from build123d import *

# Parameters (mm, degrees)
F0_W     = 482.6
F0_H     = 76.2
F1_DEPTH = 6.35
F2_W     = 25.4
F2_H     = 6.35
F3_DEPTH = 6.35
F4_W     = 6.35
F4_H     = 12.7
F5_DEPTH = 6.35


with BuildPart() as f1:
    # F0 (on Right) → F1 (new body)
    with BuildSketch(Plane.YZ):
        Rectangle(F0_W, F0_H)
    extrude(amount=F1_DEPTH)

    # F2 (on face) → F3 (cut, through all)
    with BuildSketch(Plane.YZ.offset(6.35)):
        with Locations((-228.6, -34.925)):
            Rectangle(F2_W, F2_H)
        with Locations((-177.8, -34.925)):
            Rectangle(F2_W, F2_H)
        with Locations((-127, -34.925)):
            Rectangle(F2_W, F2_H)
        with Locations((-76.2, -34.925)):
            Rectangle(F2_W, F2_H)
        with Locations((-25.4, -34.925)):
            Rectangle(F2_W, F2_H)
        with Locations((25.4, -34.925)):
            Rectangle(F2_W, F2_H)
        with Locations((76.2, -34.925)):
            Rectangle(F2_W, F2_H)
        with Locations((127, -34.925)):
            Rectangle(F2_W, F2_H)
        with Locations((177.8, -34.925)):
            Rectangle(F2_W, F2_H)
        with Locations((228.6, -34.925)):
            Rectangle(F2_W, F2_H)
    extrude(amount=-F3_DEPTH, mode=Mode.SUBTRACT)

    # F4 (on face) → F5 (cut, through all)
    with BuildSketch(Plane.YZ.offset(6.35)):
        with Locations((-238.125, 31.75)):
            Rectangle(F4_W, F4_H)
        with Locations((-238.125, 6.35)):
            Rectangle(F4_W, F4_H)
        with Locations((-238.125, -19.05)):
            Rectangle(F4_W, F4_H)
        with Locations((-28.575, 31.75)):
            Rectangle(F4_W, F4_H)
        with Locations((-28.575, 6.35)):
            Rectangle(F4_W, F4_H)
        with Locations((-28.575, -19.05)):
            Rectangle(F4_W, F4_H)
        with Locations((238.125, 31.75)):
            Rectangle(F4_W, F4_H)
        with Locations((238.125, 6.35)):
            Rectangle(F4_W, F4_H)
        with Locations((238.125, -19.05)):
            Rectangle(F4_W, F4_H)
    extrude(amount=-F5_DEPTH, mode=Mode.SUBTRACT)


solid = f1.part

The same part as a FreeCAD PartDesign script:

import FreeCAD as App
import Part
import Sketcher

V = App.Vector
Q = App.Units.Quantity

doc = App.newDocument("Part")
body = doc.addObject("PartDesign::Body", "Body")

sketch1 = doc.addObject("Sketcher::SketchObject", "Sketch")
body.addObject(sketch1)
sketch1.AttachmentSupport = (doc.YZ_Plane, [""])
sketch1.MapMode = "FlatFace"
sketch1.addGeometry([
    Part.LineSegment(V(-241.3, 38.1, 0), V(-241.3, -38.1, 0)),
    Part.LineSegment(V(-241.3, -38.1, 0), V(241.3, -38.1, 0)),
    Part.LineSegment(V(241.3, -38.1, 0), V(241.3, 38.1, 0)),
    Part.LineSegment(V(241.3, 38.1, 0), V(-241.3, 38.1, 0)),
], False)
sketch1.addConstraint([
    Sketcher.Constraint("Coincident", 0, 2, 1, 1),
    Sketcher.Constraint("Coincident", 1, 2, 2, 1),
    Sketcher.Constraint("Coincident", 2, 2, 3, 1),
    Sketcher.Constraint("Coincident", 3, 2, 0, 1),
    Sketcher.Constraint("Vertical", 0),
    Sketcher.Constraint("Horizontal", 1),
    Sketcher.Constraint("Vertical", 2),
    Sketcher.Constraint("Horizontal", 3),
    Sketcher.Constraint("Symmetric", 0, 2, 2, 2, -1, 1),
    Sketcher.Constraint("DistanceX", 1, 1, 1, 2, Q("19 in")),
    Sketcher.Constraint("DistanceY", 0, 2, 0, 1, Q("3 in")),
])
pad1 = doc.addObject("PartDesign::Pad", "Pad")
body.addObject(pad1)
pad1.Profile = sketch1
pad1.Length = Q("0.25 in")

sketch2 = doc.addObject("Sketcher::SketchObject", "Sketch001")
body.addObject(sketch2)
sketch2.AttachmentSupport = (doc.YZ_Plane, [""])
sketch2.MapMode = "FlatFace"
sketch2.AttachmentOffset = App.Placement(V(0, 0, 0.25 * 25.4), App.Rotation())
sketch2.addGeometry([
    Part.LineSegment(V(-241.3, -31.75, 0), V(-241.3, -38.1, 0)),
    Part.LineSegment(V(-241.3, -38.1, 0), V(-215.9, -38.1, 0)),
    Part.LineSegment(V(-215.9, -38.1, 0), V(-215.9, -31.75, 0)),
    Part.LineSegment(V(-215.9, -31.75, 0), V(-241.3, -31.75, 0)),
    Part.LineSegment(V(-190.5, -31.75, 0), V(-190.5, -38.1, 0)),
    Part.LineSegment(V(-190.5, -38.1, 0), V(-165.1, -38.1, 0)),
    Part.LineSegment(V(-165.1, -38.1, 0), V(-165.1, -31.75, 0)),
    Part.LineSegment(V(-165.1, -31.75, 0), V(-190.5, -31.75, 0)),
    Part.LineSegment(V(-139.7, -31.75, 0), V(-139.7, -38.1, 0)),
    Part.LineSegment(V(-139.7, -38.1, 0), V(-114.3, -38.1, 0)),
    Part.LineSegment(V(-114.3, -38.1, 0), V(-114.3, -31.75, 0)),
    Part.LineSegment(V(-114.3, -31.75, 0), V(-139.7, -31.75, 0)),
    Part.LineSegment(V(-88.9, -31.75, 0), V(-88.9, -38.1, 0)),
    Part.LineSegment(V(-88.9, -38.1, 0), V(-63.5, -38.1, 0)),
    Part.LineSegment(V(-63.5, -38.1, 0), V(-63.5, -31.75, 0)),
    Part.LineSegment(V(-63.5, -31.75, 0), V(-88.9, -31.75, 0)),
    Part.LineSegment(V(-38.1, -31.75, 0), V(-38.1, -38.1, 0)),
    Part.LineSegment(V(-38.1, -38.1, 0), V(-12.7, -38.1, 0)),
    Part.LineSegment(V(-12.7, -38.1, 0), V(-12.7, -31.75, 0)),
    Part.LineSegment(V(-12.7, -31.75, 0), V(-38.1, -31.75, 0)),
    Part.LineSegment(V(12.7, -31.75, 0), V(12.7, -38.1, 0)),
    Part.LineSegment(V(12.7, -38.1, 0), V(38.1, -38.1, 0)),
    Part.LineSegment(V(38.1, -38.1, 0), V(38.1, -31.75, 0)),
    Part.LineSegment(V(38.1, -31.75, 0), V(12.7, -31.75, 0)),
    Part.LineSegment(V(63.5, -31.75, 0), V(63.5, -38.1, 0)),
    Part.LineSegment(V(63.5, -38.1, 0), V(88.9, -38.1, 0)),
    Part.LineSegment(V(88.9, -38.1, 0), V(88.9, -31.75, 0)),
    Part.LineSegment(V(88.9, -31.75, 0), V(63.5, -31.75, 0)),
    Part.LineSegment(V(114.3, -31.75, 0), V(114.3, -38.1, 0)),
    Part.LineSegment(V(114.3, -38.1, 0), V(139.7, -38.1, 0)),
    Part.LineSegment(V(139.7, -38.1, 0), V(139.7, -31.75, 0)),
    Part.LineSegment(V(139.7, -31.75, 0), V(114.3, -31.75, 0)),
    Part.LineSegment(V(165.1, -31.75, 0), V(165.1, -38.1, 0)),
    Part.LineSegment(V(165.1, -38.1, 0), V(190.5, -38.1, 0)),
    Part.LineSegment(V(190.5, -38.1, 0), V(190.5, -31.75, 0)),
    Part.LineSegment(V(190.5, -31.75, 0), V(165.1, -31.75, 0)),
    Part.LineSegment(V(215.9, -31.75, 0), V(215.9, -38.1, 0)),
    Part.LineSegment(V(215.9, -38.1, 0), V(241.3, -38.1, 0)),
    Part.LineSegment(V(241.3, -38.1, 0), V(241.3, -31.75, 0)),
    Part.LineSegment(V(241.3, -31.75, 0), V(215.9, -31.75, 0)),
], False)
sketch2.addConstraint([
    Sketcher.Constraint("Coincident", 0, 2, 1, 1),
    Sketcher.Constraint("Coincident", 1, 2, 2, 1),
    Sketcher.Constraint("Coincident", 2, 2, 3, 1),
    Sketcher.Constraint("Coincident", 3, 2, 0, 1),
    Sketcher.Constraint("Coincident", 4, 2, 5, 1),
    Sketcher.Constraint("Coincident", 5, 2, 6, 1),
    Sketcher.Constraint("Coincident", 6, 2, 7, 1),
    Sketcher.Constraint("Coincident", 7, 2, 4, 1),
    Sketcher.Constraint("Coincident", 8, 2, 9, 1),
    Sketcher.Constraint("Coincident", 9, 2, 10, 1),
    Sketcher.Constraint("Coincident", 10, 2, 11, 1),
    Sketcher.Constraint("Coincident", 11, 2, 8, 1),
    Sketcher.Constraint("Coincident", 12, 2, 13, 1),
    Sketcher.Constraint("Coincident", 13, 2, 14, 1),
    Sketcher.Constraint("Coincident", 14, 2, 15, 1),
    Sketcher.Constraint("Coincident", 15, 2, 12, 1),
    Sketcher.Constraint("Coincident", 16, 2, 17, 1),
    Sketcher.Constraint("Coincident", 17, 2, 18, 1),
    Sketcher.Constraint("Coincident", 18, 2, 19, 1),
    Sketcher.Constraint("Coincident", 19, 2, 16, 1),
    Sketcher.Constraint("Coincident", 20, 2, 21, 1),
    Sketcher.Constraint("Coincident", 21, 2, 22, 1),
    Sketcher.Constraint("Coincident", 22, 2, 23, 1),
    Sketcher.Constraint("Coincident", 23, 2, 20, 1),
    Sketcher.Constraint("Coincident", 24, 2, 25, 1),
    Sketcher.Constraint("Coincident", 25, 2, 26, 1),
    Sketcher.Constraint("Coincident", 26, 2, 27, 1),
    Sketcher.Constraint("Coincident", 27, 2, 24, 1),
    Sketcher.Constraint("Coincident", 28, 2, 29, 1),
    Sketcher.Constraint("Coincident", 29, 2, 30, 1),
    Sketcher.Constraint("Coincident", 30, 2, 31, 1),
    Sketcher.Constraint("Coincident", 31, 2, 28, 1),
    Sketcher.Constraint("Coincident", 32, 2, 33, 1),
    Sketcher.Constraint("Coincident", 33, 2, 34, 1),
    Sketcher.Constraint("Coincident", 34, 2, 35, 1),
    Sketcher.Constraint("Coincident", 35, 2, 32, 1),
    Sketcher.Constraint("Coincident", 36, 2, 37, 1),
    Sketcher.Constraint("Coincident", 37, 2, 38, 1),
    Sketcher.Constraint("Coincident", 38, 2, 39, 1),
    Sketcher.Constraint("Coincident", 39, 2, 36, 1),
    Sketcher.Constraint("Vertical", 0),
    Sketcher.Constraint("Horizontal", 1),
    Sketcher.Constraint("Vertical", 2),
    Sketcher.Constraint("Horizontal", 3),
    Sketcher.Constraint("Vertical", 4),
    Sketcher.Constraint("Horizontal", 5),
    Sketcher.Constraint("Vertical", 6),
    Sketcher.Constraint("Horizontal", 7),
    Sketcher.Constraint("Vertical", 8),
    Sketcher.Constraint("Horizontal", 9),
    Sketcher.Constraint("Vertical", 10),
    Sketcher.Constraint("Horizontal", 11),
    Sketcher.Constraint("Vertical", 12),
    Sketcher.Constraint("Horizontal", 13),
    Sketcher.Constraint("Vertical", 14),
    Sketcher.Constraint("Horizontal", 15),
    Sketcher.Constraint("Vertical", 16),
    Sketcher.Constraint("Horizontal", 17),
    Sketcher.Constraint("Vertical", 18),
    Sketcher.Constraint("Horizontal", 19),
    Sketcher.Constraint("Vertical", 20),
    Sketcher.Constraint("Horizontal", 21),
    Sketcher.Constraint("Vertical", 22),
    Sketcher.Constraint("Horizontal", 23),
    Sketcher.Constraint("Vertical", 24),
    Sketcher.Constraint("Horizontal", 25),
    Sketcher.Constraint("Vertical", 26),
    Sketcher.Constraint("Horizontal", 27),
    Sketcher.Constraint("Vertical", 28),
    Sketcher.Constraint("Horizontal", 29),
    Sketcher.Constraint("Vertical", 30),
    Sketcher.Constraint("Horizontal", 31),
    Sketcher.Constraint("Vertical", 32),
    Sketcher.Constraint("Horizontal", 33),
    Sketcher.Constraint("Vertical", 34),
    Sketcher.Constraint("Horizontal", 35),
    Sketcher.Constraint("Vertical", 36),
    Sketcher.Constraint("Horizontal", 37),
    Sketcher.Constraint("Vertical", 38),
    Sketcher.Constraint("Horizontal", 39),
    Sketcher.Constraint("Symmetric", 17, 2, 20, 2, -2),
    Sketcher.Constraint("Symmetric", 19, 2, 22, 2, -2),
    Sketcher.Constraint("Symmetric", 13, 2, 24, 2, -2),
    Sketcher.Constraint("Symmetric", 15, 2, 26, 2, -2),
    Sketcher.Constraint("Symmetric", 9, 2, 28, 2, -2),
    Sketcher.Constraint("Symmetric", 11, 2, 30, 2, -2),
    Sketcher.Constraint("Symmetric", 5, 2, 32, 2, -2),
    Sketcher.Constraint("Symmetric", 7, 2, 34, 2, -2),
    Sketcher.Constraint("Symmetric", 1, 2, 36, 2, -2),
    Sketcher.Constraint("Symmetric", 3, 2, 38, 2, -2),
    Sketcher.Constraint("Horizontal", 1, 2, 4, 2),
    Sketcher.Constraint("Horizontal", 3, 2, 6, 2),
    Sketcher.Constraint("Horizontal", 5, 2, 8, 2),
    Sketcher.Constraint("Horizontal", 7, 2, 10, 2),
    Sketcher.Constraint("Horizontal", 9, 2, 12, 2),
    Sketcher.Constraint("Horizontal", 11, 2, 14, 2),
    Sketcher.Constraint("Horizontal", 13, 2, 16, 2),
    Sketcher.Constraint("Horizontal", 15, 2, 18, 2),
    Sketcher.Constraint("Equal", 3, 5),
    Sketcher.Constraint("Equal", 7, 9),
    Sketcher.Constraint("Equal", 11, 13),
    Sketcher.Constraint("Equal", 15, 17),
    Sketcher.Constraint("DistanceX", 1, 1, 1, 2, Q("1 in")),
    Sketcher.Constraint("DistanceX", 1, 2, 4, 2, Q("1 in")),
    Sketcher.Constraint("DistanceX", 5, 2, 8, 2, Q("1 in")),
    Sketcher.Constraint("DistanceX", 9, 2, 12, 2, Q("1 in")),
    Sketcher.Constraint("DistanceX", 13, 2, 16, 2, Q("1 in")),
    Sketcher.Constraint("DistanceX", 17, 2, 20, 2, Q("1 in")),
    Sketcher.Constraint("DistanceY", 0, 2, 0, 1, Q("0.25 in")),
    Sketcher.Constraint("DistanceY", 0, 2, -1, 1, Q("1.5 in")),
])
pocket1 = doc.addObject("PartDesign::Pocket", "Pocket")
body.addObject(pocket1)
pocket1.Profile = sketch2
pocket1.Type = "ThroughAll"

sketch3 = doc.addObject("Sketcher::SketchObject", "Sketch002")
body.addObject(sketch3)
sketch3.AttachmentSupport = (doc.YZ_Plane, [""])
sketch3.MapMode = "FlatFace"
sketch3.AttachmentOffset = App.Placement(V(0, 0, 0.25 * 25.4), App.Rotation())
sketch3.addGeometry([
    Part.LineSegment(V(-241.3, 38.1, 0), V(-241.3, 25.4, 0)),
    Part.LineSegment(V(-241.3, 25.4, 0), V(-234.95, 25.4, 0)),
    Part.LineSegment(V(-234.95, 25.4, 0), V(-234.95, 38.1, 0)),
    Part.LineSegment(V(-234.95, 38.1, 0), V(-241.3, 38.1, 0)),
    Part.LineSegment(V(-241.3, 12.7, 0), V(-241.3, 0, 0)),
    Part.LineSegment(V(-241.3, 0, 0), V(-234.95, 0, 0)),
    Part.LineSegment(V(-234.95, 0, 0), V(-234.95, 12.7, 0)),
    Part.LineSegment(V(-234.95, 12.7, 0), V(-241.3, 12.7, 0)),
    Part.LineSegment(V(-241.3, -12.7, 0), V(-241.3, -25.4, 0)),
    Part.LineSegment(V(-241.3, -25.4, 0), V(-234.95, -25.4, 0)),
    Part.LineSegment(V(-234.95, -25.4, 0), V(-234.95, -12.7, 0)),
    Part.LineSegment(V(-234.95, -12.7, 0), V(-241.3, -12.7, 0)),
    Part.LineSegment(V(-31.75, 38.1, 0), V(-31.75, 25.4, 0)),
    Part.LineSegment(V(-31.75, 25.4, 0), V(-25.4, 25.4, 0)),
    Part.LineSegment(V(-25.4, 25.4, 0), V(-25.4, 38.1, 0)),
    Part.LineSegment(V(-25.4, 38.1, 0), V(-31.75, 38.1, 0)),
    Part.LineSegment(V(-31.75, 12.7, 0), V(-31.75, 0, 0)),
    Part.LineSegment(V(-31.75, 0, 0), V(-25.4, 0, 0)),
    Part.LineSegment(V(-25.4, 0, 0), V(-25.4, 12.7, 0)),
    Part.LineSegment(V(-25.4, 12.7, 0), V(-31.75, 12.7, 0)),
    Part.LineSegment(V(-31.75, -12.7, 0), V(-31.75, -25.4, 0)),
    Part.LineSegment(V(-31.75, -25.4, 0), V(-25.4, -25.4, 0)),
    Part.LineSegment(V(-25.4, -25.4, 0), V(-25.4, -12.7, 0)),
    Part.LineSegment(V(-25.4, -12.7, 0), V(-31.75, -12.7, 0)),
    Part.LineSegment(V(234.95, 38.1, 0), V(234.95, 25.4, 0)),
    Part.LineSegment(V(234.95, 25.4, 0), V(241.3, 25.4, 0)),
    Part.LineSegment(V(241.3, 25.4, 0), V(241.3, 38.1, 0)),
    Part.LineSegment(V(241.3, 38.1, 0), V(234.95, 38.1, 0)),
    Part.LineSegment(V(234.95, 12.7, 0), V(234.95, 0, 0)),
    Part.LineSegment(V(234.95, 0, 0), V(241.3, 0, 0)),
    Part.LineSegment(V(241.3, 0, 0), V(241.3, 12.7, 0)),
    Part.LineSegment(V(241.3, 12.7, 0), V(234.95, 12.7, 0)),
    Part.LineSegment(V(234.95, -12.7, 0), V(234.95, -25.4, 0)),
    Part.LineSegment(V(234.95, -25.4, 0), V(241.3, -25.4, 0)),
    Part.LineSegment(V(241.3, -25.4, 0), V(241.3, -12.7, 0)),
    Part.LineSegment(V(241.3, -12.7, 0), V(234.95, -12.7, 0)),
], False)
sketch3.addConstraint([
    Sketcher.Constraint("Coincident", 0, 2, 1, 1),
    Sketcher.Constraint("Coincident", 1, 2, 2, 1),
    Sketcher.Constraint("Coincident", 2, 2, 3, 1),
    Sketcher.Constraint("Coincident", 3, 2, 0, 1),
    Sketcher.Constraint("Coincident", 4, 2, 5, 1),
    Sketcher.Constraint("Coincident", 5, 2, 6, 1),
    Sketcher.Constraint("Coincident", 6, 2, 7, 1),
    Sketcher.Constraint("Coincident", 7, 2, 4, 1),
    Sketcher.Constraint("Coincident", 8, 2, 9, 1),
    Sketcher.Constraint("Coincident", 9, 2, 10, 1),
    Sketcher.Constraint("Coincident", 10, 2, 11, 1),
    Sketcher.Constraint("Coincident", 11, 2, 8, 1),
    Sketcher.Constraint("Coincident", 12, 2, 13, 1),
    Sketcher.Constraint("Coincident", 13, 2, 14, 1),
    Sketcher.Constraint("Coincident", 14, 2, 15, 1),
    Sketcher.Constraint("Coincident", 15, 2, 12, 1),
    Sketcher.Constraint("Coincident", 16, 2, 17, 1),
    Sketcher.Constraint("Coincident", 17, 2, 18, 1),
    Sketcher.Constraint("Coincident", 18, 2, 19, 1),
    Sketcher.Constraint("Coincident", 19, 2, 16, 1),
    Sketcher.Constraint("Coincident", 20, 2, 21, 1),
    Sketcher.Constraint("Coincident", 21, 2, 22, 1),
    Sketcher.Constraint("Coincident", 22, 2, 23, 1),
    Sketcher.Constraint("Coincident", 23, 2, 20, 1),
    Sketcher.Constraint("Coincident", 24, 2, 25, 1),
    Sketcher.Constraint("Coincident", 25, 2, 26, 1),
    Sketcher.Constraint("Coincident", 26, 2, 27, 1),
    Sketcher.Constraint("Coincident", 27, 2, 24, 1),
    Sketcher.Constraint("Coincident", 28, 2, 29, 1),
    Sketcher.Constraint("Coincident", 29, 2, 30, 1),
    Sketcher.Constraint("Coincident", 30, 2, 31, 1),
    Sketcher.Constraint("Coincident", 31, 2, 28, 1),
    Sketcher.Constraint("Coincident", 32, 2, 33, 1),
    Sketcher.Constraint("Coincident", 33, 2, 34, 1),
    Sketcher.Constraint("Coincident", 34, 2, 35, 1),
    Sketcher.Constraint("Coincident", 35, 2, 32, 1),
    Sketcher.Constraint("Vertical", 0),
    Sketcher.Constraint("Horizontal", 1),
    Sketcher.Constraint("Vertical", 2),
    Sketcher.Constraint("Horizontal", 3),
    Sketcher.Constraint("Vertical", 4),
    Sketcher.Constraint("Horizontal", 5),
    Sketcher.Constraint("Vertical", 6),
    Sketcher.Constraint("Horizontal", 7),
    Sketcher.Constraint("Vertical", 8),
    Sketcher.Constraint("Horizontal", 9),
    Sketcher.Constraint("Vertical", 10),
    Sketcher.Constraint("Horizontal", 11),
    Sketcher.Constraint("Vertical", 12),
    Sketcher.Constraint("Horizontal", 13),
    Sketcher.Constraint("Vertical", 14),
    Sketcher.Constraint("Horizontal", 15),
    Sketcher.Constraint("Vertical", 16),
    Sketcher.Constraint("Horizontal", 17),
    Sketcher.Constraint("Vertical", 18),
    Sketcher.Constraint("Horizontal", 19),
    Sketcher.Constraint("Vertical", 20),
    Sketcher.Constraint("Horizontal", 21),
    Sketcher.Constraint("Vertical", 22),
    Sketcher.Constraint("Horizontal", 23),
    Sketcher.Constraint("Vertical", 24),
    Sketcher.Constraint("Horizontal", 25),
    Sketcher.Constraint("Vertical", 26),
    Sketcher.Constraint("Horizontal", 27),
    Sketcher.Constraint("Vertical", 28),
    Sketcher.Constraint("Horizontal", 29),
    Sketcher.Constraint("Vertical", 30),
    Sketcher.Constraint("Horizontal", 31),
    Sketcher.Constraint("Vertical", 32),
    Sketcher.Constraint("Horizontal", 33),
    Sketcher.Constraint("Vertical", 34),
    Sketcher.Constraint("Horizontal", 35),
    Sketcher.Constraint("Symmetric", 9, 2, 24, 2, -1, 1),
    Sketcher.Constraint("Symmetric", 5, 2, 28, 2, -1, 1),
    Sketcher.Constraint("Symmetric", 11, 2, 30, 2, -1, 1),
    Sketcher.Constraint("Symmetric", 1, 2, 32, 2, -1, 1),
    Sketcher.Constraint("Symmetric", 7, 2, 34, 2, -1, 1),
    Sketcher.Constraint("Symmetric", 1, 2, 24, 2, -2),
    Sketcher.Constraint("Symmetric", 3, 2, 26, 2, -2),
    Sketcher.Constraint("Symmetric", 4, 2, 29, 2, -2),
    Sketcher.Constraint("Symmetric", 6, 2, 10, 2, -1),
    Sketcher.Constraint("Symmetric", 12, 2, 20, 2, -1),
    Sketcher.Constraint("Symmetric", 18, 2, 22, 2, -1),
    Sketcher.Constraint("PointOnObject", 16, 2, -1),
    Sketcher.Constraint("Horizontal", 1, 2, 12, 2),
    Sketcher.Constraint("Horizontal", 3, 2, 14, 2),
    Sketcher.Constraint("Horizontal", 7, 2, 18, 2),
    Sketcher.Constraint("Vertical", 3, 2, 4, 2),
    Sketcher.Constraint("Vertical", 15, 2, 16, 2),
    Sketcher.Constraint("Vertical", 14, 2, 17, 2),
    Sketcher.Constraint("Equal", 11, 13),
    Sketcher.Constraint("Equal", 2, 4),
    Sketcher.Constraint("Equal", 6, 8),
    Sketcher.Constraint("DistanceY", 0, 2, 0, 1, Q("0.5 in")),
    Sketcher.Constraint("DistanceX", 13, 2, -1, 1, Q("1 in")),
    Sketcher.Constraint("DistanceX", 1, 2, 12, 2, Q("8 in")),
    Sketcher.Constraint("DistanceX", 1, 1, 1, 2, Q("0.25 in")),
])
pocket2 = doc.addObject("PartDesign::Pocket", "Pocket001")
body.addObject(pocket2)
pocket2.Profile = sketch3
pocket2.Type = "ThroughAll"

doc.recompute()
